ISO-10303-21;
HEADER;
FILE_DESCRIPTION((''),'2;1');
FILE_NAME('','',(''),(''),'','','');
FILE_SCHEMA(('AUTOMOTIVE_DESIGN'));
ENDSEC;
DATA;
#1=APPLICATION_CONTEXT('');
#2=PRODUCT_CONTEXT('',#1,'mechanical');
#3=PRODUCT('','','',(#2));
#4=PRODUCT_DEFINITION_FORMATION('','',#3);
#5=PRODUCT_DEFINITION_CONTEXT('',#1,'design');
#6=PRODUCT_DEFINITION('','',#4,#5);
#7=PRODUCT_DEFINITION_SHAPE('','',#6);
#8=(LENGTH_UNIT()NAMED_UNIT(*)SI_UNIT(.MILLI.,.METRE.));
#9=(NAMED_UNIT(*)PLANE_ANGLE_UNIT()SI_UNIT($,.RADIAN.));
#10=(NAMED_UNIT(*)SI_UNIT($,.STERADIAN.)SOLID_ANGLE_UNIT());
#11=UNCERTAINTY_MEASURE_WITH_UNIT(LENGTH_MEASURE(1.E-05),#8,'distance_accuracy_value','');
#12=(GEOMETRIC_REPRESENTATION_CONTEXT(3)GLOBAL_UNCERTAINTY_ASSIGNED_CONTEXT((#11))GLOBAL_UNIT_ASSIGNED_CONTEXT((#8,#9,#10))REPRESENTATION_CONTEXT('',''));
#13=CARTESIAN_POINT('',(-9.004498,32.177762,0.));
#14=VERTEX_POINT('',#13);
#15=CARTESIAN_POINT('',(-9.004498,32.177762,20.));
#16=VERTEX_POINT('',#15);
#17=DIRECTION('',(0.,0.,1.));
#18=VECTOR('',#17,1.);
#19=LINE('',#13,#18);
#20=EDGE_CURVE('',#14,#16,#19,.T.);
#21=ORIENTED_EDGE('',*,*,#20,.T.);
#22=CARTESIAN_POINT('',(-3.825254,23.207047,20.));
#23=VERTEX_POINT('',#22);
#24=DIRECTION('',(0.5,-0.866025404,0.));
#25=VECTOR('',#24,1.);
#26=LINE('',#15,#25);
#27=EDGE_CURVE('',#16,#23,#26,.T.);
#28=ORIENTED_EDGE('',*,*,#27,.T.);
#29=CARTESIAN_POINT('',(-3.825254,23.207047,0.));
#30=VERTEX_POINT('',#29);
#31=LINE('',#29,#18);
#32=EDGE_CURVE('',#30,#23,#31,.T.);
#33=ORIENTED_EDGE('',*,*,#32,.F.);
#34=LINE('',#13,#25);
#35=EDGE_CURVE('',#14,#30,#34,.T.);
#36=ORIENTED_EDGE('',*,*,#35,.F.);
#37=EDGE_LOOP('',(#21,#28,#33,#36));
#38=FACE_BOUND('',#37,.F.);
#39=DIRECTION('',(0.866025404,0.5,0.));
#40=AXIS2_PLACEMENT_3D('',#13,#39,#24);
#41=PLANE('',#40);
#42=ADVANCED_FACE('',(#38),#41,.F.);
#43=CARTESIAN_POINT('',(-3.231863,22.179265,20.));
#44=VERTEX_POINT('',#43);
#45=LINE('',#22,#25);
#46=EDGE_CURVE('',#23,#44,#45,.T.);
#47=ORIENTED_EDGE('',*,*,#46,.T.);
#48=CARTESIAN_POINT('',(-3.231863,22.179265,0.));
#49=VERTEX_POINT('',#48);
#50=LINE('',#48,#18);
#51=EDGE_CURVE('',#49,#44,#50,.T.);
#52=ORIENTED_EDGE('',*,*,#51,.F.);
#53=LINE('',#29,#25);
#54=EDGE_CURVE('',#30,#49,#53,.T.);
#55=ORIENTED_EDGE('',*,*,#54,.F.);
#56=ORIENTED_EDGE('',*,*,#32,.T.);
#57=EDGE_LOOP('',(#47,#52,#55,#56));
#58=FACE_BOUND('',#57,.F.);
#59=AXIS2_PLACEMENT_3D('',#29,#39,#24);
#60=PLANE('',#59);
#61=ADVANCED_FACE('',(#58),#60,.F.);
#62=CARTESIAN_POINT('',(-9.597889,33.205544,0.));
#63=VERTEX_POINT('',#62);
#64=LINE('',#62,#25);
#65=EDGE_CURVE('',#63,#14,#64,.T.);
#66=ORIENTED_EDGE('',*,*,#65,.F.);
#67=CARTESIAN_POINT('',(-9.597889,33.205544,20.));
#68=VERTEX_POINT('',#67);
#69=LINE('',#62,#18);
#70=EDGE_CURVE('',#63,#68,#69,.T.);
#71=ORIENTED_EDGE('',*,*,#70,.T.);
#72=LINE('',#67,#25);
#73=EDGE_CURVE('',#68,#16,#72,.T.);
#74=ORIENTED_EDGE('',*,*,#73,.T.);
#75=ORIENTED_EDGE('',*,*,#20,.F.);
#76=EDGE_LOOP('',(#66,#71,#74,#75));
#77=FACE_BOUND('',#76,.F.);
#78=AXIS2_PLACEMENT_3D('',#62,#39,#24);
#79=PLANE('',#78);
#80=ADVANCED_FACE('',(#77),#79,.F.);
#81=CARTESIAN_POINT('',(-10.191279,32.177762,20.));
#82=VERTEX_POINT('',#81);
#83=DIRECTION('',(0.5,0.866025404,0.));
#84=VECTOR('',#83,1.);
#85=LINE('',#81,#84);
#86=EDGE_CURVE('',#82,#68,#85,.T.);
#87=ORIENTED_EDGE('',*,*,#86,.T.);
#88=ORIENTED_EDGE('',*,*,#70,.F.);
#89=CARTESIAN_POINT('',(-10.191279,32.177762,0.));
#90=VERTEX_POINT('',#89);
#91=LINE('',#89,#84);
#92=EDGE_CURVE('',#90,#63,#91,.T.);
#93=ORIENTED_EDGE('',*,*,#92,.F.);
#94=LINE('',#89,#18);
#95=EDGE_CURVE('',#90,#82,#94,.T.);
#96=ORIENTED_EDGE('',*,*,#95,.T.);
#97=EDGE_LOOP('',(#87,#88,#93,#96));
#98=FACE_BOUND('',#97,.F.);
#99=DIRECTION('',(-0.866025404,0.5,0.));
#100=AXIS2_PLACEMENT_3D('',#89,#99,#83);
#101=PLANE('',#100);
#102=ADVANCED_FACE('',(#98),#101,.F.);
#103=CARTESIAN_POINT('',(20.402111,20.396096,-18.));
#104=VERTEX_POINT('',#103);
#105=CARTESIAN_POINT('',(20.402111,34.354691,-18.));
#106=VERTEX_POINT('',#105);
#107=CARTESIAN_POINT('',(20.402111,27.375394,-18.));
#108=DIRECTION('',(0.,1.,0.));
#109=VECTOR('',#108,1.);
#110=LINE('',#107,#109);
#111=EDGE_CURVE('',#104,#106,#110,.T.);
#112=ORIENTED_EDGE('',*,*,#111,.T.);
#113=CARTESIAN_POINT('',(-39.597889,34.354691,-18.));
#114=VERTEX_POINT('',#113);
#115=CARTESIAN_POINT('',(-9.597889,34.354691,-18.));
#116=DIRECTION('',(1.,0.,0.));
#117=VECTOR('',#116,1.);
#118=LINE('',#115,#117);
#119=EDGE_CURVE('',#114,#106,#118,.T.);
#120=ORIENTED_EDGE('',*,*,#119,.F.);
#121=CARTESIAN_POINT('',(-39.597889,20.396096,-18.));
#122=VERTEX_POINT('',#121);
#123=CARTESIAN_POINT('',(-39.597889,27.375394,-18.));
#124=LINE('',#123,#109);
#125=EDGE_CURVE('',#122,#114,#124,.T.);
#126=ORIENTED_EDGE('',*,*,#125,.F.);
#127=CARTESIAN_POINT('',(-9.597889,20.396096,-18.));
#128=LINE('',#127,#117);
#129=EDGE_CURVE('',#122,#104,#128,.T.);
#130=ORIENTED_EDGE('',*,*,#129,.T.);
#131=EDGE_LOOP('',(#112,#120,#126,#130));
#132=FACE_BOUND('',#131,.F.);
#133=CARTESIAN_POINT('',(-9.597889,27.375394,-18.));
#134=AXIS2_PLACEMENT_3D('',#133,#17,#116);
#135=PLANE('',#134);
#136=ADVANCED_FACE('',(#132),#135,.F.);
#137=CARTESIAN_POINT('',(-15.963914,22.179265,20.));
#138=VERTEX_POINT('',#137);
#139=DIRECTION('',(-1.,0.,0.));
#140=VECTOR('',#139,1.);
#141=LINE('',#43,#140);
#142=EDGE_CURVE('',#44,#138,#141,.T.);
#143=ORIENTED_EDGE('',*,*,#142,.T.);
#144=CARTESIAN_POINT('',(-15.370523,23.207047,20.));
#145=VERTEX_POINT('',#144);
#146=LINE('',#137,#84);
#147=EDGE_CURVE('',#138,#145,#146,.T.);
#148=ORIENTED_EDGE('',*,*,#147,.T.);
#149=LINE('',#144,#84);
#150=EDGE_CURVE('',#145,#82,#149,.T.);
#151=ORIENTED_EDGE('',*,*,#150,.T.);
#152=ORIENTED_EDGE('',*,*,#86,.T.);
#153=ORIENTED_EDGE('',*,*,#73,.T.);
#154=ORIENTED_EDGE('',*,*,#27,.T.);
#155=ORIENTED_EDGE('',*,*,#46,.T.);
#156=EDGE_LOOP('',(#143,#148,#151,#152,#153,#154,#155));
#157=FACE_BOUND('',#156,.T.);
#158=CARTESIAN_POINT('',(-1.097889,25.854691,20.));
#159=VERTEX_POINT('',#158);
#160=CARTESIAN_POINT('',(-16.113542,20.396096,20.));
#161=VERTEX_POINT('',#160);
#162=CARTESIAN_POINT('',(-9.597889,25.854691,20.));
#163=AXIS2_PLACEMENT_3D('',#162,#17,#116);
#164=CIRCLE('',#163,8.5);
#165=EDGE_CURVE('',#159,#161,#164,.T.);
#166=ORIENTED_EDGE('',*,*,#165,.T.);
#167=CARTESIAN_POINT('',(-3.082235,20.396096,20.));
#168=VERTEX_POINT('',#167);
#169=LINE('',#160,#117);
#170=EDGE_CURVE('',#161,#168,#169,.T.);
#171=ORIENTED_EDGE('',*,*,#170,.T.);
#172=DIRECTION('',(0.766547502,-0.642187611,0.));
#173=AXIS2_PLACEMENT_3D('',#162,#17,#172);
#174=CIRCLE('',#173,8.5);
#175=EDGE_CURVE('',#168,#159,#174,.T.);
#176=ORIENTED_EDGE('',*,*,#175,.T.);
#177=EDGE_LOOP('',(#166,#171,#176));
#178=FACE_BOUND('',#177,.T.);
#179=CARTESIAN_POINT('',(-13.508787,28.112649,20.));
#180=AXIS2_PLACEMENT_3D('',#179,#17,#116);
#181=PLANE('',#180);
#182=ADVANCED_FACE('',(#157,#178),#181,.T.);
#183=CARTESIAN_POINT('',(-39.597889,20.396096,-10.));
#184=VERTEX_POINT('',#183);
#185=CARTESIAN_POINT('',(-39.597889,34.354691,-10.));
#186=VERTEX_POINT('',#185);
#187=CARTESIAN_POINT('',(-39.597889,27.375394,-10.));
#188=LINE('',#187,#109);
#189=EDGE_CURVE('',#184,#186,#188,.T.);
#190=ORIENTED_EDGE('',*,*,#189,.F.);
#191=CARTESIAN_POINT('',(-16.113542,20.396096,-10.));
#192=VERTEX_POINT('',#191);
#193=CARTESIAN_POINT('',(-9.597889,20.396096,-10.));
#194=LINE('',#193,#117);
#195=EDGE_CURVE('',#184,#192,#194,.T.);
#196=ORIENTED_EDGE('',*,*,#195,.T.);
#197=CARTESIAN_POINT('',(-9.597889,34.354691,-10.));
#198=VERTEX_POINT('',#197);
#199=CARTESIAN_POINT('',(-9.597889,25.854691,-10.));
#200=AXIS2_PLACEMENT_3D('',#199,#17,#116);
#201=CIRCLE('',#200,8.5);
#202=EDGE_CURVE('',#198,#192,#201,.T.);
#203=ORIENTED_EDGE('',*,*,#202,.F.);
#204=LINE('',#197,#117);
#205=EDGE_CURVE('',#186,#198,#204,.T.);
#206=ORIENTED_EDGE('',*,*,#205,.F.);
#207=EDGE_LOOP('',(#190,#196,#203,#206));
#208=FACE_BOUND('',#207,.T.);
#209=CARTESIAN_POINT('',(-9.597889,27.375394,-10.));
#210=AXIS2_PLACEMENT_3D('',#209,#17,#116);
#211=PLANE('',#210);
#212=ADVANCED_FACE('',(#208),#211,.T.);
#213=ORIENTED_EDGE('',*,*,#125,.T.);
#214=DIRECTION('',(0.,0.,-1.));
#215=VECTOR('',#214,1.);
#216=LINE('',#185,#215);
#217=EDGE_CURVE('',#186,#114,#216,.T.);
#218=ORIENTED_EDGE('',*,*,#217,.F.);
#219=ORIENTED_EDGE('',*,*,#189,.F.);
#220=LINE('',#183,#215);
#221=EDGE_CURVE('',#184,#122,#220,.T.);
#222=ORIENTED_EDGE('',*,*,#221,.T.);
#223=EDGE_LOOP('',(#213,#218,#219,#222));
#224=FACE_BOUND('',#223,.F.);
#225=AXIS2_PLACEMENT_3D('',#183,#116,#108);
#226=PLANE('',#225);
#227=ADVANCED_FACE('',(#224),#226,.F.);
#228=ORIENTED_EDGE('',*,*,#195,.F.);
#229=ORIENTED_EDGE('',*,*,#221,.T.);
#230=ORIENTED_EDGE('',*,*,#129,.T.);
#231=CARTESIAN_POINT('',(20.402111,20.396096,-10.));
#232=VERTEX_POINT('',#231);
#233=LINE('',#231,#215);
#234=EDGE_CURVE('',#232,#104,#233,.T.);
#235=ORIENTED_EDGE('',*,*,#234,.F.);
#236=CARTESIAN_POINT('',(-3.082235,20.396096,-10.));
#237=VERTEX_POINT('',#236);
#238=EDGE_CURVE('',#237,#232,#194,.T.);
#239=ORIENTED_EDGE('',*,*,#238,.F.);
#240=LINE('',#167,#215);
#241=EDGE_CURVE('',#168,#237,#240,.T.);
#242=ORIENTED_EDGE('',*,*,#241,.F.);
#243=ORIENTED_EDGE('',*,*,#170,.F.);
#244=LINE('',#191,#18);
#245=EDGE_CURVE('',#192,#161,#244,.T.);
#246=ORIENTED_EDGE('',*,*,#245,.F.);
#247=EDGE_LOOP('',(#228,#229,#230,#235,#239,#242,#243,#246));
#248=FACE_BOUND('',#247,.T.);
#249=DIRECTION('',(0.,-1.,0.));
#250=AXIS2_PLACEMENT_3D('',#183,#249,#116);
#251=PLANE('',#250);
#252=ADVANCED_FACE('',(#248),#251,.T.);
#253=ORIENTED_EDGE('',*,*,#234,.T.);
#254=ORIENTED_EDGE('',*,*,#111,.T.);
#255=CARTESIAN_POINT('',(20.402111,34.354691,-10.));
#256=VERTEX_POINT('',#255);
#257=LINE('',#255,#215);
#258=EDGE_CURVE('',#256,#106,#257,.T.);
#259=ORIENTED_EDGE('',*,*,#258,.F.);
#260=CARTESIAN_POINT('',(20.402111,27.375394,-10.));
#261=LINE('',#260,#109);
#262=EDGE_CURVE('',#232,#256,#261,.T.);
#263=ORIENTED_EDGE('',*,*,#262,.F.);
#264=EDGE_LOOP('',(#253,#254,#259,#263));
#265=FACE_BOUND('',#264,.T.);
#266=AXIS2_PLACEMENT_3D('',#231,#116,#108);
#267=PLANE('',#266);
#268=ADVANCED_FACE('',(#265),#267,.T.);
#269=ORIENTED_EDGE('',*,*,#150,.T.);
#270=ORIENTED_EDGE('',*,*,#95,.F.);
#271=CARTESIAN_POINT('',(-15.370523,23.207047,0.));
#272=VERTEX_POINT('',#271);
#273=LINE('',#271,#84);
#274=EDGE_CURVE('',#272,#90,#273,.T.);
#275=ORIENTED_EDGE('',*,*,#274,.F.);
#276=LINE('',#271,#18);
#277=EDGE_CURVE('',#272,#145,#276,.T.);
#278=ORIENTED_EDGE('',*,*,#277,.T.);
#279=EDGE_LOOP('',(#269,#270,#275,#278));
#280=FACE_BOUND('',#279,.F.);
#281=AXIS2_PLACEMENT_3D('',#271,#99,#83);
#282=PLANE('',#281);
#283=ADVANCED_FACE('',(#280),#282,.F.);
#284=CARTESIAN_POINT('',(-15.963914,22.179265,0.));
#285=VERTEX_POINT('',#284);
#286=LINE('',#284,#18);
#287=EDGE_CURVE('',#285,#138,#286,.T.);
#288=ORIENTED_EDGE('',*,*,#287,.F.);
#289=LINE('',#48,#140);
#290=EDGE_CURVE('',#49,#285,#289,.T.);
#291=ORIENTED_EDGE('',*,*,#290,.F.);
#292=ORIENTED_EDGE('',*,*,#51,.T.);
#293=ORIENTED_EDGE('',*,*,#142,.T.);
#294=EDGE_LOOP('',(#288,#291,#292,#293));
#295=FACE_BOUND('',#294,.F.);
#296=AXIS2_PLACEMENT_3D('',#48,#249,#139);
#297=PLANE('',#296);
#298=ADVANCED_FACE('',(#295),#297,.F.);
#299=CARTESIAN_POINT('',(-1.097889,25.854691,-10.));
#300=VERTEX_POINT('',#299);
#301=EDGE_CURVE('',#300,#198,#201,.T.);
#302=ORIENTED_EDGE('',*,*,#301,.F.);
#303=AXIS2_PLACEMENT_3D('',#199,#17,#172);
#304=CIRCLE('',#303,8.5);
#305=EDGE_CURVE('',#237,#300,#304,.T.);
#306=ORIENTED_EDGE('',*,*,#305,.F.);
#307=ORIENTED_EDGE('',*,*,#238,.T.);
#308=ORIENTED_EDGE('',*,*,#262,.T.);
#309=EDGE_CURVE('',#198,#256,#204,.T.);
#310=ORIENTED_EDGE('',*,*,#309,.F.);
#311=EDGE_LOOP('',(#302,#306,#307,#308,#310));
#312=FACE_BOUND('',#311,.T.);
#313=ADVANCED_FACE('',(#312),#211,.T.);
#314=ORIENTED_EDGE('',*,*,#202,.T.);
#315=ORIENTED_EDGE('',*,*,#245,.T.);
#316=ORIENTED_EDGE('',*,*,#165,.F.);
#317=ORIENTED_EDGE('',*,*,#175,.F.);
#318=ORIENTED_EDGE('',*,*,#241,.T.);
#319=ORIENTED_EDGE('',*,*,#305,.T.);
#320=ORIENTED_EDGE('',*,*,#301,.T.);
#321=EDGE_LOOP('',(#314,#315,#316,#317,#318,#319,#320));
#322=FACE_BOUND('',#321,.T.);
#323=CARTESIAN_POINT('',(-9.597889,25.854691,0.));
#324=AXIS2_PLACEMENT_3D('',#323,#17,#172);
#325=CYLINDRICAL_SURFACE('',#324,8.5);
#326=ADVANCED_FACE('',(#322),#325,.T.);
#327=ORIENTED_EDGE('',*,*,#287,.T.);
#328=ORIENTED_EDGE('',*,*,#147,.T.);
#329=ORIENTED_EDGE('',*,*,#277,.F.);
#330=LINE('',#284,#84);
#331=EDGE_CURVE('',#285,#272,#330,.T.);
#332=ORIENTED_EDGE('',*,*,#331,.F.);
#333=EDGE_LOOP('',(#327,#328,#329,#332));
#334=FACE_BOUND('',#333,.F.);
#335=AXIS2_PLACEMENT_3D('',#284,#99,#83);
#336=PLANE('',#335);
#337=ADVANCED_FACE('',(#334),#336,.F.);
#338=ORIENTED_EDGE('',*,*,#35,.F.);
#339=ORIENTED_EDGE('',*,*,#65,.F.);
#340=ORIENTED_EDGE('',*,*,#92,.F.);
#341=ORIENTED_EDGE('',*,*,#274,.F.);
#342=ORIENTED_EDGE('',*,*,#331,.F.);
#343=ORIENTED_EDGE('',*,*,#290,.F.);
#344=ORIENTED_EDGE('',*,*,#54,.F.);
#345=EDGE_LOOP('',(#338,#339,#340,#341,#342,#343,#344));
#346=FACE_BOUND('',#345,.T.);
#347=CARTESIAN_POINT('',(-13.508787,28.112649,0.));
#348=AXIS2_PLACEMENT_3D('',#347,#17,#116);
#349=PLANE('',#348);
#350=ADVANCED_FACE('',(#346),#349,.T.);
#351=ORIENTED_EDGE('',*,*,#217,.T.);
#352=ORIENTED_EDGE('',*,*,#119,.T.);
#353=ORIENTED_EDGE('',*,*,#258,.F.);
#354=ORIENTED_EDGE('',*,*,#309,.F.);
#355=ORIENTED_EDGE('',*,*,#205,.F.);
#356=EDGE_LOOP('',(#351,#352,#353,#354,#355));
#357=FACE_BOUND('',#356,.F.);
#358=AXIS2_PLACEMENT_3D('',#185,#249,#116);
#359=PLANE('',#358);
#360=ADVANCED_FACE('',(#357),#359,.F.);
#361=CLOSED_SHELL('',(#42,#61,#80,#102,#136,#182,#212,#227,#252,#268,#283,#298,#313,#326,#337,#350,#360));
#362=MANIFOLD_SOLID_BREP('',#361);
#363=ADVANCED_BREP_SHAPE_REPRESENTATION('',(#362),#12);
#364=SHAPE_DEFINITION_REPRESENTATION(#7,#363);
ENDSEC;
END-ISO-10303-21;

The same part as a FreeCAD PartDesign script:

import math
import FreeCAD as App
import Part
import Sketcher

V = App.Vector
Q = App.Units.Quantity


def add_polygon(sketch, points):
    """Adds a closed chain of lines whose ends are joined by coincident constraints."""
    first, n = sketch.GeometryCount, len(points)
    for a, b in zip(points, points[1:] + points[:1]):
        sketch.addGeometry(Part.LineSegment(App.Vector(*a, 0), App.Vector(*b, 0)), False)
    for i in range(n):
        sketch.addConstraint(Sketcher.Constraint("Coincident", first + i, 2, first + (i + 1) % n, 1))

doc = App.newDocument("Part")
params = doc.addObject("Spreadsheet::Sheet", "Params")
for row, (alias, value) in enumerate([
    ("sketch1_radius", "8.5 mm"),
    ("pad1_length", "20 mm"),
    ("sketch2_radius", "8.5 mm"),
    ("pad2_length", "10 mm"),
    ("sketch3_width", "60 mm"),
    ("pad3_length", "8 mm"),
], start=1):
    params.set(f"A{row}", alias)
    params.set(f"B{row}", "=" + value)
    params.setAlias(f"B{row}", alias)

body = doc.addObject("PartDesign::Body", "Body")

# Sketch on XY plane
sketch1 = doc.addObject("Sketcher::SketchObject", "Sketch")
body.addObject(sketch1)
sketch1.AttachmentSupport = (doc.XY_Plane, [""])
sketch1.MapMode = "FlatFace"
sketch1.addGeometry(Part.ArcOfCircle(Part.Circle(V(-9.6, 25.9, 0), V(0, 0, 1), 8.5), math.radians(-40), math.radians(0)), False)  # 0
sketch1.addGeometry(Part.ArcOfCircle(Part.Circle(V(-9.6, 25.9, 0), V(0, 0, 1), 8.5), math.radians(0), math.radians(220)), False)  # 1
sketch1.addGeometry(Part.LineSegment(V(-16.1, 20.4, 0), V(-3.1, 20.4, 0)), False)  # 2
add_polygon(sketch1, [(-15.4, 23.2), (-10.2, 32.2), (-9.6, 33.2), (-9, 32.2), (-3.8, 23.2), (-3.2, 22.2), (-16, 22.2)])  # lines 3-9
sketch1.addConstraint(Sketcher.Constraint("Tangent", 0, 2, 1, 1))
sketch1.addConstraint(Sketcher.Constraint("Coincident", 1, 2, 2, 1))
sketch1.addConstraint(Sketcher.Constraint("Coincident", 2, 2, 0, 1))
sketch1.addConstraint(Sketcher.Constraint("Horizontal", 2))
sketch1.addConstraint(Sketcher.Constraint("Horizontal", 8))
sketch1.addConstraint(Sketcher.Constraint("Equal", 0, 1))
sketch1.addConstraint(Sketcher.Constraint("Parallel", 3, 4))
sketch1.addConstraint(Sketcher.Constraint("Parallel", 5, 6))
sketch1.addConstraint(Sketcher.Constraint("Parallel", 6, 7))
sketch1.addConstraint(Sketcher.Constraint("Parallel", 4, 9))
sketch1.addConstraint(Sketcher.Constraint("Horizontal", 1, 3, 0, 2))
sketch1.addConstraint(Sketcher.Constraint("Horizontal", 3, 2, 5, 2))
sketch1.addConstraint(Sketcher.Constraint("Horizontal", 6, 2, 9, 2))
sketch1.addConstraint(Sketcher.Constraint("Vertical", 1, 3, 4, 2))
sketch1.addConstraint(Sketcher.Constraint("Equal", 4, 5))
sketch1.addConstraint(Sketcher.Constraint("Equal", 5, 7))
sketch1.addConstraint(Sketcher.Constraint("Radius", 0, Q("8.5 mm")))
sketch1.addConstraint(Sketcher.Constraint("Angle", 3, Q("60 deg")))
sketch1.addConstraint(Sketcher.Constraint("DistanceX", 8, 2, 8, 1, Q("12.732051 mm")))
sketch1.addConstraint(Sketcher.Constraint("DistanceX", 5, 2, -1, 1, Q("9.004498 mm")))
sketch1.addConstraint(Sketcher.Constraint("Distance", 3, Q("10.358489 mm")))
sketch1.addConstraint(Sketcher.Constraint("DistanceX", 2, 1, 2, 2, Q("13.031308 mm")))
sketch1.addConstraint(Sketcher.Constraint("DistanceY", -1, 1, 0, 3, Q("25.854691 mm")))
sketch1.addConstraint(Sketcher.Constraint("DistanceY", -1, 1, 3, 2, Q("32.177762 mm")))
sketch1.setExpression("Constraints[23]", "Params.sketch1_radius")
pad1 = doc.addObject("PartDesign::Pad", "Pad")
body.addObject(pad1)
pad1.Profile = sketch1
pad1.setExpression("Length", "Params.pad1_length")

# Sketch on XY plane
sketch2 = doc.addObject("Sketcher::SketchObject", "Sketch001")
body.addObject(sketch2)
sketch2.AttachmentSupport = (doc.XY_Plane, [""])
sketch2.MapMode = "FlatFace"
sketch2.addGeometry(Part.ArcOfCircle(Part.Circle(V(-10, 26, 0), V(0, 0, 1), 8), math.radians(-40), math.radians(0)), False)
sketch2.addGeometry(Part.ArcOfCircle(Part.Circle(V(-10, 26, 0), V(0, 0, 1), 8), math.radians(0), math.radians(220)), False)
sketch2.addGeometry(Part.LineSegment(V(-16, 20, 0), V(-3, 20, 0)), False)
sketch2.addConstraint(Sketcher.Constraint("Tangent", 0, 2, 1, 1))
sketch2.addConstraint(Sketcher.Constraint("Coincident", 1, 2, 2, 1))
sketch2.addConstraint(Sketcher.Constraint("Coincident", 2, 2, 0, 1))
sketch2.addConstraint(Sketcher.Constraint("Horizontal", 2))
sketch2.addConstraint(Sketcher.Constraint("Equal", 0, 1))
sketch2.addConstraint(Sketcher.Constraint("Horizontal", 1, 3, 0, 2))
sketch2.addConstraint(Sketcher.Constraint("Radius", 0, Q("8.5 mm")))
sketch2.addConstraint(Sketcher.Constraint("DistanceX", 2, 1, 2, 2, Q("13.031308 mm")))
sketch2.addConstraint(Sketcher.Constraint("DistanceX", 0, 3, -1, 1, Q("9.597889 mm")))
sketch2.addConstraint(Sketcher.Constraint("DistanceY", -1, 1, 0, 3, Q("25.854691 mm")))
sketch2.setExpression("Constraints[6]", "Params.sketch2_radius")
pad2 = doc.addObject("PartDesign::Pad", "Pad001")
body.addObject(pad2)
pad2.Profile = sketch2
pad2.setExpression("Length", "Params.pad2_length")
pad2.Reversed = True

# Sketch on XY plane
sketch3 = doc.addObject("Sketcher::SketchObject", "Sketch002")
body.addObject(sketch3)
sketch3.AttachmentSupport = (doc.XY_Plane, [""])
sketch3.MapMode = "FlatFace"
sketch3.AttachmentOffset = App.Placement(V(0, 0, -10), App.Rotation())
add_polygon(sketch3, [(-40, 34), (-40, 20), (20, 20), (20, 34)])  # lines 0-3
sketch3.addConstraint(Sketcher.Constraint("Vertical", 0))
sketch3.addConstraint(Sketcher.Constraint("Horizontal", 1))
sketch3.addConstraint(Sketcher.Constraint("Vertical", 2))
sketch3.addConstraint(Sketcher.Constraint("Horizontal", 3))
sketch3.addConstraint(Sketcher.Constraint("DistanceX", 1, 1, 1, 2, Q("60 mm")))
sketch3.addConstraint(Sketcher.Constraint("DistanceY", 0, 2, 0, 1, Q("13.958595 mm")))
sketch3.addConstraint(Sketcher.Constraint("DistanceX", 0, 2, -1, 1, Q("39.597889 mm")))
sketch3.addConstraint(Sketcher.Constraint("DistanceY", -1, 1, 2, 2, Q("34.354691 mm")))
sketch3.setExpression("Constraints[8]", "Params.sketch3_width")
pad3 = doc.addObject("PartDesign::Pad", "Pad002")
body.addObject(pad3)
pad3.Profile = sketch3
pad3.setExpression("Length", "Params.pad3_length")
pad3.Reversed = True

doc.recompute()
